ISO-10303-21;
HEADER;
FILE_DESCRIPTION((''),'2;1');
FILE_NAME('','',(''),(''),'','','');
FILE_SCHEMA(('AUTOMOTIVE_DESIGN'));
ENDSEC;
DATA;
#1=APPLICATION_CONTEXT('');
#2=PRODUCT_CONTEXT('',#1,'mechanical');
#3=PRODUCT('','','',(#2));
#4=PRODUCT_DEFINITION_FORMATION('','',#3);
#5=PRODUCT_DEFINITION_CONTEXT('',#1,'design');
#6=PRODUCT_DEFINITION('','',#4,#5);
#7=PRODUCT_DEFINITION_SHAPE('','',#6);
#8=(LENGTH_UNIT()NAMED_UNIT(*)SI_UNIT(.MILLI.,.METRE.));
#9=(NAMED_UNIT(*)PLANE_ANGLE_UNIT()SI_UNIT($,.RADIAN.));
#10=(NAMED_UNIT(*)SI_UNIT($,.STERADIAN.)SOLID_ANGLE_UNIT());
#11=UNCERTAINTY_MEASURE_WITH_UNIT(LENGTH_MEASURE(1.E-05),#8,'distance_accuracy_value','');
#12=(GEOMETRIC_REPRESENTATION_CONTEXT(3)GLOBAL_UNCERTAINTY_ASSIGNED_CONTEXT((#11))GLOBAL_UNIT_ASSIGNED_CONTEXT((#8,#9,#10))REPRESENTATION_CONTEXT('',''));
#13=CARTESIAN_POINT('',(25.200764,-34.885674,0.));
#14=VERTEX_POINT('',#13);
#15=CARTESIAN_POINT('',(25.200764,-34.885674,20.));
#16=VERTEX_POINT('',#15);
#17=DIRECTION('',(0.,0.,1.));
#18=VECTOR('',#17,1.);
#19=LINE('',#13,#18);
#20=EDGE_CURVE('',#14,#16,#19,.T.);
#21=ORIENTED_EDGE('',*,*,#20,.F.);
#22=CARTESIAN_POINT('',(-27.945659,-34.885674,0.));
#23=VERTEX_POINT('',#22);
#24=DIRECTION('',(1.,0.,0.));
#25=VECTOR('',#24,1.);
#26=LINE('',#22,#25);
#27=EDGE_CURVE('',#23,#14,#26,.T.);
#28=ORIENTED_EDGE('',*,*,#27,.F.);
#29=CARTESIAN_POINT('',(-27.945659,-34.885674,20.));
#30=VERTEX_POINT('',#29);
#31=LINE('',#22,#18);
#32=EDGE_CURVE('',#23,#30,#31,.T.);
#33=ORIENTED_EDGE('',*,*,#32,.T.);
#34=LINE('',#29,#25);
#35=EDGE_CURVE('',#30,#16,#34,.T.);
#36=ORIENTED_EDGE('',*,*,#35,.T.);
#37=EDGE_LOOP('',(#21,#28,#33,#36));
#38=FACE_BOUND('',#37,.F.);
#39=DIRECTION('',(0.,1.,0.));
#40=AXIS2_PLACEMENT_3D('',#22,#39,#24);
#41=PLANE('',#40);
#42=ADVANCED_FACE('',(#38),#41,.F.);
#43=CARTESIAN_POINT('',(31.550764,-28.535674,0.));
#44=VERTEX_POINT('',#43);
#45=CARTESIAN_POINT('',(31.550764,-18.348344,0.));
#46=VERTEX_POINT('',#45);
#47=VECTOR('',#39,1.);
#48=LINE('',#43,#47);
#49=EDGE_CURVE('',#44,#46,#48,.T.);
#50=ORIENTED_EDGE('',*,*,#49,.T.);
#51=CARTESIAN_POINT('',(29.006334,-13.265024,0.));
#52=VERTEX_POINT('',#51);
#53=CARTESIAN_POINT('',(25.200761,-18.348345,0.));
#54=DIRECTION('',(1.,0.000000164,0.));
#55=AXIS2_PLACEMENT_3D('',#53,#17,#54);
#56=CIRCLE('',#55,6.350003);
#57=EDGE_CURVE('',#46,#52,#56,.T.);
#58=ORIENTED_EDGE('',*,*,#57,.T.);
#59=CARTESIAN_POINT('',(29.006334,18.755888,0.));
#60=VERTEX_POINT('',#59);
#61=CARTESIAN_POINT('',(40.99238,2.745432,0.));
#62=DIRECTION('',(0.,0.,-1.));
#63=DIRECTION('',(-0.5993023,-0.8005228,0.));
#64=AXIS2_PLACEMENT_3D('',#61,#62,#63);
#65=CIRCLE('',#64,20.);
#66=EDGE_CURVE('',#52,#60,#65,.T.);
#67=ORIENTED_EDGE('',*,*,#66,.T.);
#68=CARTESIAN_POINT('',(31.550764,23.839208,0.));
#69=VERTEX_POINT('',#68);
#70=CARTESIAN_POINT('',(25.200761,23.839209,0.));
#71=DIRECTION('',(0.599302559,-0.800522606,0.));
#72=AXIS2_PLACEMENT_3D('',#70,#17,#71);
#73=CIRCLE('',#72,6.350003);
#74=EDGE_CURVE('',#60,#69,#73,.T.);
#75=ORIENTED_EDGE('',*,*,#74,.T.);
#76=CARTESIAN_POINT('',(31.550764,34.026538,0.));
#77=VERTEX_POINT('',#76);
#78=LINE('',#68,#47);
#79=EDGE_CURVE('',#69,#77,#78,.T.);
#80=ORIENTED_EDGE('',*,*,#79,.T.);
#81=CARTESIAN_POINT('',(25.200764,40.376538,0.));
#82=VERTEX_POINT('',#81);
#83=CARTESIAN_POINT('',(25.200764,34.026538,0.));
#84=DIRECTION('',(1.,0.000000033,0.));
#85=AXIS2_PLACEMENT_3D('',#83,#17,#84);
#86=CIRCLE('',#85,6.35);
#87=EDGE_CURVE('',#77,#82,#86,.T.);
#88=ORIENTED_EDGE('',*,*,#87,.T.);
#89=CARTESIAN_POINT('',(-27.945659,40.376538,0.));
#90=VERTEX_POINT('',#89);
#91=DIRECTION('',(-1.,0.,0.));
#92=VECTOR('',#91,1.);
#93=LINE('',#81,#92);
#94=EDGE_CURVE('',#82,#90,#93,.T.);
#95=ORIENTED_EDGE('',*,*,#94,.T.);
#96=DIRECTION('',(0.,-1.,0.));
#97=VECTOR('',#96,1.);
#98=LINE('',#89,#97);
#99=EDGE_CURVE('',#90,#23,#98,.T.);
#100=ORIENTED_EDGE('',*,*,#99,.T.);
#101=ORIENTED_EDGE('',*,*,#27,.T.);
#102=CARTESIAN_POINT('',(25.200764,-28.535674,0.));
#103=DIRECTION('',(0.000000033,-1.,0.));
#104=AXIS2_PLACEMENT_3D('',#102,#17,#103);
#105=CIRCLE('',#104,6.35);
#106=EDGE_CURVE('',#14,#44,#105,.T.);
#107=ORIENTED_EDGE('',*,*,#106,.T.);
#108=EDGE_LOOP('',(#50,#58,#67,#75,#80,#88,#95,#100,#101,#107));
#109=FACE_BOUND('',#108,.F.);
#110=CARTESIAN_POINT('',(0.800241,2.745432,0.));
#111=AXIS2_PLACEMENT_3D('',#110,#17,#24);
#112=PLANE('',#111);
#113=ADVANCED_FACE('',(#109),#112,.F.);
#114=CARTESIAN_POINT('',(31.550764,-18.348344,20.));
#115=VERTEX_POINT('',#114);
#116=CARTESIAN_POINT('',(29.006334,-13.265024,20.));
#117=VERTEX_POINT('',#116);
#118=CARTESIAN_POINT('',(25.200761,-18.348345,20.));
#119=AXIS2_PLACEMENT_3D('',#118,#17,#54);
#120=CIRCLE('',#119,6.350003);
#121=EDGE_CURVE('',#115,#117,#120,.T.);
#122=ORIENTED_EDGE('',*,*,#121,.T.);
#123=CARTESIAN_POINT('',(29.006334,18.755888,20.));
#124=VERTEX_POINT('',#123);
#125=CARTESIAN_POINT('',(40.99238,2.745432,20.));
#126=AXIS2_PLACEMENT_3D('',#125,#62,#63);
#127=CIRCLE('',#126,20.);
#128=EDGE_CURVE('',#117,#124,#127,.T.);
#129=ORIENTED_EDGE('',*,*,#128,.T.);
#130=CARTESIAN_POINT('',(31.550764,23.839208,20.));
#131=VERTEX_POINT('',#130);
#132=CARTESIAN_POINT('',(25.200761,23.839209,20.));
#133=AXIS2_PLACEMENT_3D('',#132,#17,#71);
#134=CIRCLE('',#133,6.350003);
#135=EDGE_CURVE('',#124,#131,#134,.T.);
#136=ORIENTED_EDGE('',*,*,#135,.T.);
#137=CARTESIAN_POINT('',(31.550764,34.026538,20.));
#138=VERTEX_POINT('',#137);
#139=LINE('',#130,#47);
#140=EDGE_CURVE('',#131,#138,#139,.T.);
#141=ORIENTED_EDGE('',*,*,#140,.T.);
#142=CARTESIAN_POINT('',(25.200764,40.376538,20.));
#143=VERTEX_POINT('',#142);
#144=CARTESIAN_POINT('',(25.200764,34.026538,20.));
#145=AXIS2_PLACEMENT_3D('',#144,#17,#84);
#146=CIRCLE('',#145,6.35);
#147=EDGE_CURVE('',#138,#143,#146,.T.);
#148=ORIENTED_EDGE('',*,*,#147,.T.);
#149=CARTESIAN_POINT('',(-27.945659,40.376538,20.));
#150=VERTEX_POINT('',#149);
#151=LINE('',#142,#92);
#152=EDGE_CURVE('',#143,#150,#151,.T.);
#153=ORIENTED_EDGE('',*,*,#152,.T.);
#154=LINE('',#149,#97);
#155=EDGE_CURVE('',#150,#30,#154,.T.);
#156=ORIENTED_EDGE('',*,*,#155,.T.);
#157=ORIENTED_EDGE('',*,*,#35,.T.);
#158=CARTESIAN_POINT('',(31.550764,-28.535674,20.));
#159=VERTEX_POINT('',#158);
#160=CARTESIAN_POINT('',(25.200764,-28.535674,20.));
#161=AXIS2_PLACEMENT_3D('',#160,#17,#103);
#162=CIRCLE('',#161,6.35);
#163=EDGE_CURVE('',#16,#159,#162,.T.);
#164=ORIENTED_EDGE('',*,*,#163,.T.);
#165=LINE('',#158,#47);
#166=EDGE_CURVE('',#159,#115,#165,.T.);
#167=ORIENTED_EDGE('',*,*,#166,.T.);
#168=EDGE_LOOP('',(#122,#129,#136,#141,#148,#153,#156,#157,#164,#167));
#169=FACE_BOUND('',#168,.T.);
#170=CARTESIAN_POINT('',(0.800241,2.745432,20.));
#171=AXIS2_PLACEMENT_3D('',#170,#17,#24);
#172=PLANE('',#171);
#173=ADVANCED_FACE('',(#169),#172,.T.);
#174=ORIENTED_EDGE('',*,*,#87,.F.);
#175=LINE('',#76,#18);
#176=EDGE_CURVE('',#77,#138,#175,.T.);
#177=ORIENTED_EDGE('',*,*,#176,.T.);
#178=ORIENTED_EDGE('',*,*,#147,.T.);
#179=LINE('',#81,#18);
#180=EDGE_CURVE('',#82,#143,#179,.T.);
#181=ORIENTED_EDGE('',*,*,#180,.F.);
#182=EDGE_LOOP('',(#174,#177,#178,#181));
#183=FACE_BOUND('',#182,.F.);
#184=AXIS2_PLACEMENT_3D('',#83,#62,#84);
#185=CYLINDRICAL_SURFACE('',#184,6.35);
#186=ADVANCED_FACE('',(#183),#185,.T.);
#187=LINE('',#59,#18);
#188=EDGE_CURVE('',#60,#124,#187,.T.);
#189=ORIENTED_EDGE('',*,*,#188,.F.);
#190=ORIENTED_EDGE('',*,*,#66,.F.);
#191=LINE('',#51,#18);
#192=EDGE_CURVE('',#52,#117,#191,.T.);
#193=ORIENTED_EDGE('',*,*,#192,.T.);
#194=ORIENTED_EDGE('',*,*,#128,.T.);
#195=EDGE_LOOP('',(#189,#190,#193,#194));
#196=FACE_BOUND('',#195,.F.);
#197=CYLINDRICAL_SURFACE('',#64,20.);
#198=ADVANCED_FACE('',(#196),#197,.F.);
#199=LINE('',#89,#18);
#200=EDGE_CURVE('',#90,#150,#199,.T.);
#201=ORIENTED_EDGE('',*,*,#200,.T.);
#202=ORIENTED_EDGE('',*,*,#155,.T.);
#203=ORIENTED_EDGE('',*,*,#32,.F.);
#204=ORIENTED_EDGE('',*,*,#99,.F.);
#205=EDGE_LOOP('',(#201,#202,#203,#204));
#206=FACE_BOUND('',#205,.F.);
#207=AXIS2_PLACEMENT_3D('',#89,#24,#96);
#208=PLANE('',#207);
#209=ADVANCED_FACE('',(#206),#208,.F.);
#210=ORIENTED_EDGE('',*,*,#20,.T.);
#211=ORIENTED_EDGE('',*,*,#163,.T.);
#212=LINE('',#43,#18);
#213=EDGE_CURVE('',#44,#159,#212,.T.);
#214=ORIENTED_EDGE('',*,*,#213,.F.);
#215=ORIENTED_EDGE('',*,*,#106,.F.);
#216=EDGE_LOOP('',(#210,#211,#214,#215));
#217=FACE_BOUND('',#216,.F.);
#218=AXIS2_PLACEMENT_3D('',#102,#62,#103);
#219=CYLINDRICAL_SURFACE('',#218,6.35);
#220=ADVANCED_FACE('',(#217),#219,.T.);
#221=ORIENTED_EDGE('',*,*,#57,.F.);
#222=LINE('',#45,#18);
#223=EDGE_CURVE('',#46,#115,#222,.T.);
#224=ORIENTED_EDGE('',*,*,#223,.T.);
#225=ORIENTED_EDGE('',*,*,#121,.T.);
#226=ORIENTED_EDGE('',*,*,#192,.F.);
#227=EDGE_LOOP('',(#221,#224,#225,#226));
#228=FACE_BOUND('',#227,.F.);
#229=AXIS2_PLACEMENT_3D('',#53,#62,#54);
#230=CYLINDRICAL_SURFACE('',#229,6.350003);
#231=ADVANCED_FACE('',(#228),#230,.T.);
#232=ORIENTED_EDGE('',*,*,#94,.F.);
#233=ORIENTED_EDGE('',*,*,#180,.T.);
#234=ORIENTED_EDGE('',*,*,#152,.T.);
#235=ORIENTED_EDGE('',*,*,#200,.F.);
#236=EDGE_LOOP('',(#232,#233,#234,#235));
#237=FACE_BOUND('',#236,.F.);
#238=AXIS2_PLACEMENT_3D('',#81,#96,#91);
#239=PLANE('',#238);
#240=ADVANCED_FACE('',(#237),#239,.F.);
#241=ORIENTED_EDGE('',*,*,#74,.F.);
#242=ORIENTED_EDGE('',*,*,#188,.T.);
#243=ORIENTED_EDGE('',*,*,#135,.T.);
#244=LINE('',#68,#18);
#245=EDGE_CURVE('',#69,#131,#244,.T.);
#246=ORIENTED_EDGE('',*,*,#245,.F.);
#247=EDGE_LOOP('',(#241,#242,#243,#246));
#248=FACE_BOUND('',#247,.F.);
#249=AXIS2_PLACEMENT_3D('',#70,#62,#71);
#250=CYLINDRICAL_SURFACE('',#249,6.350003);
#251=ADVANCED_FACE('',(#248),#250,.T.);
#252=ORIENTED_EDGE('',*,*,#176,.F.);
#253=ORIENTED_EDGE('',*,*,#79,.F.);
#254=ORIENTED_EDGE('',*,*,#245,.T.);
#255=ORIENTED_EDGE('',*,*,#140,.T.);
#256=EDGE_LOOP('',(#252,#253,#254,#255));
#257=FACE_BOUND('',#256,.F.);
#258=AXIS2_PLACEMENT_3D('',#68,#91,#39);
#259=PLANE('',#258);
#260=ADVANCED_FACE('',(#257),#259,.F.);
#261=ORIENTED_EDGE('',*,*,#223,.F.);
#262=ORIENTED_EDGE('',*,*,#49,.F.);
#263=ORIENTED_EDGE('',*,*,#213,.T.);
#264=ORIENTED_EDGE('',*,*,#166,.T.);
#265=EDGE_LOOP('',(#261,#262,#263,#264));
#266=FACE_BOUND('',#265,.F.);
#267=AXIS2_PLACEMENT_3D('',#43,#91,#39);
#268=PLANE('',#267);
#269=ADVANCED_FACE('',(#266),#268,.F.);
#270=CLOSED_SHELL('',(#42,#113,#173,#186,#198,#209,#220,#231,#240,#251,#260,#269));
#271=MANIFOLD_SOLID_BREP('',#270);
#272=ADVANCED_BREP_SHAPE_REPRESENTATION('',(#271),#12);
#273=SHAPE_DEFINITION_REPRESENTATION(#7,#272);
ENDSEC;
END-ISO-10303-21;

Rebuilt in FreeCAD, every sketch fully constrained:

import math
import FreeCAD as App
import Part
import Sketcher

doc = App.newDocument("Part")
body = doc.addObject("PartDesign::Body", "Body")

# Sketch on XY plane
sketch1 = body.newObject("Sketcher::SketchObject", "Sketch")
sketch1.AttachmentSupport = (doc.getObject("XY_Plane"), [""])
sketch1.MapMode = "FlatFace"
sketch1.addGeometry([
    Part.LineSegment(App.Vector(-27.945659, 40.376538, 0), App.Vector(-27.945659, -34.885674, 0)),  # 0
    Part.LineSegment(App.Vector(-27.945659, -34.885674, 0), App.Vector(25.200764, -34.885674, 0)),  # 1
    Part.ArcOfCircle(Part.Circle(App.Vector(25.200764, -28.535674, 0), App.Vector(0, 0, 1), 6.35), math.radians(-89.999998), math.radians(-0.000002)),  # 2
    Part.LineSegment(App.Vector(31.550764, -28.535674, 0), App.Vector(31.550764, -18.348344, 0)),  # 3
    Part.ArcOfCircle(Part.Circle(App.Vector(25.200761, -18.348345, 0), App.Vector(0, 0, 1), 6.350003), math.radians(0.000009), math.radians(53.180037)),  # 4
    Part.ArcOfCircle(Part.Circle(App.Vector(40.99238, 2.745432, 0), App.Vector(0, 0, 1), 20), math.radians(126.819945), math.radians(233.180055)),  # 5
    Part.ArcOfCircle(Part.Circle(App.Vector(25.200761, 23.839209, 0), App.Vector(0, 0, 1), 6.350003), math.radians(-53.180037), math.radians(-0.000009)),  # 6
    Part.LineSegment(App.Vector(31.550764, 23.839208, 0), App.Vector(31.550764, 34.026538, 0)),  # 7
    Part.ArcOfCircle(Part.Circle(App.Vector(25.200764, 34.026538, 0), App.Vector(0, 0, 1), 6.35), math.radians(0.000002), math.radians(89.999998)),  # 8
    Part.LineSegment(App.Vector(25.200764, 40.376538, 0), App.Vector(-27.945659, 40.376538, 0)),  # 9
], False)
sketch1.addConstraint([
    Sketcher.Constraint("Coincident", 0, 2, 1, 1),
    Sketcher.Constraint("Tangent", 1, 2, 2, 1),
    Sketcher.Constraint("Tangent", 2, 2, 3, 1),
    Sketcher.Constraint("Tangent", 3, 2, 4, 1),
    Sketcher.Constraint("Tangent", 4, 2, 5, 2),
    Sketcher.Constraint("Tangent", 5, 1, 6, 1),
    Sketcher.Constraint("Tangent", 6, 2, 7, 1),
    Sketcher.Constraint("Tangent", 7, 2, 8, 1),
    Sketcher.Constraint("Tangent", 8, 2, 9, 1),
    Sketcher.Constraint("Coincident", 9, 2, 0, 1),
    Sketcher.Constraint("Vertical", 0),
    Sketcher.Constraint("Horizontal", 1),
    Sketcher.Constraint("Vertical", 3),
    Sketcher.Constraint("Vertical", 7),
    Sketcher.Constraint("Horizontal", 9),
    Sketcher.Constraint("Equal", 4, 6),
    Sketcher.Constraint("Equal", 2, 8),
    Sketcher.Constraint("Vertical", 4, 3, 6, 3),
    Sketcher.Constraint("Equal", 3, 7),
    Sketcher.Constraint("Radius", 5, 20.0),
    Sketcher.Constraint("Radius", 2, 6.35),
    Sketcher.Constraint("Radius", 4, 6.350003),
    Sketcher.Constraint("DistanceY", 3, 1, 3, 2, 10.18733),
    Sketcher.Constraint("DistanceX", 1, 1, 1, 2, 53.146423),
    Sketcher.Constraint("DistanceY", 0, 2, 0, 1, 75.262212),
    Sketcher.Constraint("DistanceX", -1, 1, 4, 3, 25.200761),
    Sketcher.Constraint("DistanceY", -1, 1, 6, 3, 23.839209),
])
pad1 = body.newObject("PartDesign::Pad", "Pad")
pad1.Profile = sketch1
pad1.Length = 20

doc.recompute()
